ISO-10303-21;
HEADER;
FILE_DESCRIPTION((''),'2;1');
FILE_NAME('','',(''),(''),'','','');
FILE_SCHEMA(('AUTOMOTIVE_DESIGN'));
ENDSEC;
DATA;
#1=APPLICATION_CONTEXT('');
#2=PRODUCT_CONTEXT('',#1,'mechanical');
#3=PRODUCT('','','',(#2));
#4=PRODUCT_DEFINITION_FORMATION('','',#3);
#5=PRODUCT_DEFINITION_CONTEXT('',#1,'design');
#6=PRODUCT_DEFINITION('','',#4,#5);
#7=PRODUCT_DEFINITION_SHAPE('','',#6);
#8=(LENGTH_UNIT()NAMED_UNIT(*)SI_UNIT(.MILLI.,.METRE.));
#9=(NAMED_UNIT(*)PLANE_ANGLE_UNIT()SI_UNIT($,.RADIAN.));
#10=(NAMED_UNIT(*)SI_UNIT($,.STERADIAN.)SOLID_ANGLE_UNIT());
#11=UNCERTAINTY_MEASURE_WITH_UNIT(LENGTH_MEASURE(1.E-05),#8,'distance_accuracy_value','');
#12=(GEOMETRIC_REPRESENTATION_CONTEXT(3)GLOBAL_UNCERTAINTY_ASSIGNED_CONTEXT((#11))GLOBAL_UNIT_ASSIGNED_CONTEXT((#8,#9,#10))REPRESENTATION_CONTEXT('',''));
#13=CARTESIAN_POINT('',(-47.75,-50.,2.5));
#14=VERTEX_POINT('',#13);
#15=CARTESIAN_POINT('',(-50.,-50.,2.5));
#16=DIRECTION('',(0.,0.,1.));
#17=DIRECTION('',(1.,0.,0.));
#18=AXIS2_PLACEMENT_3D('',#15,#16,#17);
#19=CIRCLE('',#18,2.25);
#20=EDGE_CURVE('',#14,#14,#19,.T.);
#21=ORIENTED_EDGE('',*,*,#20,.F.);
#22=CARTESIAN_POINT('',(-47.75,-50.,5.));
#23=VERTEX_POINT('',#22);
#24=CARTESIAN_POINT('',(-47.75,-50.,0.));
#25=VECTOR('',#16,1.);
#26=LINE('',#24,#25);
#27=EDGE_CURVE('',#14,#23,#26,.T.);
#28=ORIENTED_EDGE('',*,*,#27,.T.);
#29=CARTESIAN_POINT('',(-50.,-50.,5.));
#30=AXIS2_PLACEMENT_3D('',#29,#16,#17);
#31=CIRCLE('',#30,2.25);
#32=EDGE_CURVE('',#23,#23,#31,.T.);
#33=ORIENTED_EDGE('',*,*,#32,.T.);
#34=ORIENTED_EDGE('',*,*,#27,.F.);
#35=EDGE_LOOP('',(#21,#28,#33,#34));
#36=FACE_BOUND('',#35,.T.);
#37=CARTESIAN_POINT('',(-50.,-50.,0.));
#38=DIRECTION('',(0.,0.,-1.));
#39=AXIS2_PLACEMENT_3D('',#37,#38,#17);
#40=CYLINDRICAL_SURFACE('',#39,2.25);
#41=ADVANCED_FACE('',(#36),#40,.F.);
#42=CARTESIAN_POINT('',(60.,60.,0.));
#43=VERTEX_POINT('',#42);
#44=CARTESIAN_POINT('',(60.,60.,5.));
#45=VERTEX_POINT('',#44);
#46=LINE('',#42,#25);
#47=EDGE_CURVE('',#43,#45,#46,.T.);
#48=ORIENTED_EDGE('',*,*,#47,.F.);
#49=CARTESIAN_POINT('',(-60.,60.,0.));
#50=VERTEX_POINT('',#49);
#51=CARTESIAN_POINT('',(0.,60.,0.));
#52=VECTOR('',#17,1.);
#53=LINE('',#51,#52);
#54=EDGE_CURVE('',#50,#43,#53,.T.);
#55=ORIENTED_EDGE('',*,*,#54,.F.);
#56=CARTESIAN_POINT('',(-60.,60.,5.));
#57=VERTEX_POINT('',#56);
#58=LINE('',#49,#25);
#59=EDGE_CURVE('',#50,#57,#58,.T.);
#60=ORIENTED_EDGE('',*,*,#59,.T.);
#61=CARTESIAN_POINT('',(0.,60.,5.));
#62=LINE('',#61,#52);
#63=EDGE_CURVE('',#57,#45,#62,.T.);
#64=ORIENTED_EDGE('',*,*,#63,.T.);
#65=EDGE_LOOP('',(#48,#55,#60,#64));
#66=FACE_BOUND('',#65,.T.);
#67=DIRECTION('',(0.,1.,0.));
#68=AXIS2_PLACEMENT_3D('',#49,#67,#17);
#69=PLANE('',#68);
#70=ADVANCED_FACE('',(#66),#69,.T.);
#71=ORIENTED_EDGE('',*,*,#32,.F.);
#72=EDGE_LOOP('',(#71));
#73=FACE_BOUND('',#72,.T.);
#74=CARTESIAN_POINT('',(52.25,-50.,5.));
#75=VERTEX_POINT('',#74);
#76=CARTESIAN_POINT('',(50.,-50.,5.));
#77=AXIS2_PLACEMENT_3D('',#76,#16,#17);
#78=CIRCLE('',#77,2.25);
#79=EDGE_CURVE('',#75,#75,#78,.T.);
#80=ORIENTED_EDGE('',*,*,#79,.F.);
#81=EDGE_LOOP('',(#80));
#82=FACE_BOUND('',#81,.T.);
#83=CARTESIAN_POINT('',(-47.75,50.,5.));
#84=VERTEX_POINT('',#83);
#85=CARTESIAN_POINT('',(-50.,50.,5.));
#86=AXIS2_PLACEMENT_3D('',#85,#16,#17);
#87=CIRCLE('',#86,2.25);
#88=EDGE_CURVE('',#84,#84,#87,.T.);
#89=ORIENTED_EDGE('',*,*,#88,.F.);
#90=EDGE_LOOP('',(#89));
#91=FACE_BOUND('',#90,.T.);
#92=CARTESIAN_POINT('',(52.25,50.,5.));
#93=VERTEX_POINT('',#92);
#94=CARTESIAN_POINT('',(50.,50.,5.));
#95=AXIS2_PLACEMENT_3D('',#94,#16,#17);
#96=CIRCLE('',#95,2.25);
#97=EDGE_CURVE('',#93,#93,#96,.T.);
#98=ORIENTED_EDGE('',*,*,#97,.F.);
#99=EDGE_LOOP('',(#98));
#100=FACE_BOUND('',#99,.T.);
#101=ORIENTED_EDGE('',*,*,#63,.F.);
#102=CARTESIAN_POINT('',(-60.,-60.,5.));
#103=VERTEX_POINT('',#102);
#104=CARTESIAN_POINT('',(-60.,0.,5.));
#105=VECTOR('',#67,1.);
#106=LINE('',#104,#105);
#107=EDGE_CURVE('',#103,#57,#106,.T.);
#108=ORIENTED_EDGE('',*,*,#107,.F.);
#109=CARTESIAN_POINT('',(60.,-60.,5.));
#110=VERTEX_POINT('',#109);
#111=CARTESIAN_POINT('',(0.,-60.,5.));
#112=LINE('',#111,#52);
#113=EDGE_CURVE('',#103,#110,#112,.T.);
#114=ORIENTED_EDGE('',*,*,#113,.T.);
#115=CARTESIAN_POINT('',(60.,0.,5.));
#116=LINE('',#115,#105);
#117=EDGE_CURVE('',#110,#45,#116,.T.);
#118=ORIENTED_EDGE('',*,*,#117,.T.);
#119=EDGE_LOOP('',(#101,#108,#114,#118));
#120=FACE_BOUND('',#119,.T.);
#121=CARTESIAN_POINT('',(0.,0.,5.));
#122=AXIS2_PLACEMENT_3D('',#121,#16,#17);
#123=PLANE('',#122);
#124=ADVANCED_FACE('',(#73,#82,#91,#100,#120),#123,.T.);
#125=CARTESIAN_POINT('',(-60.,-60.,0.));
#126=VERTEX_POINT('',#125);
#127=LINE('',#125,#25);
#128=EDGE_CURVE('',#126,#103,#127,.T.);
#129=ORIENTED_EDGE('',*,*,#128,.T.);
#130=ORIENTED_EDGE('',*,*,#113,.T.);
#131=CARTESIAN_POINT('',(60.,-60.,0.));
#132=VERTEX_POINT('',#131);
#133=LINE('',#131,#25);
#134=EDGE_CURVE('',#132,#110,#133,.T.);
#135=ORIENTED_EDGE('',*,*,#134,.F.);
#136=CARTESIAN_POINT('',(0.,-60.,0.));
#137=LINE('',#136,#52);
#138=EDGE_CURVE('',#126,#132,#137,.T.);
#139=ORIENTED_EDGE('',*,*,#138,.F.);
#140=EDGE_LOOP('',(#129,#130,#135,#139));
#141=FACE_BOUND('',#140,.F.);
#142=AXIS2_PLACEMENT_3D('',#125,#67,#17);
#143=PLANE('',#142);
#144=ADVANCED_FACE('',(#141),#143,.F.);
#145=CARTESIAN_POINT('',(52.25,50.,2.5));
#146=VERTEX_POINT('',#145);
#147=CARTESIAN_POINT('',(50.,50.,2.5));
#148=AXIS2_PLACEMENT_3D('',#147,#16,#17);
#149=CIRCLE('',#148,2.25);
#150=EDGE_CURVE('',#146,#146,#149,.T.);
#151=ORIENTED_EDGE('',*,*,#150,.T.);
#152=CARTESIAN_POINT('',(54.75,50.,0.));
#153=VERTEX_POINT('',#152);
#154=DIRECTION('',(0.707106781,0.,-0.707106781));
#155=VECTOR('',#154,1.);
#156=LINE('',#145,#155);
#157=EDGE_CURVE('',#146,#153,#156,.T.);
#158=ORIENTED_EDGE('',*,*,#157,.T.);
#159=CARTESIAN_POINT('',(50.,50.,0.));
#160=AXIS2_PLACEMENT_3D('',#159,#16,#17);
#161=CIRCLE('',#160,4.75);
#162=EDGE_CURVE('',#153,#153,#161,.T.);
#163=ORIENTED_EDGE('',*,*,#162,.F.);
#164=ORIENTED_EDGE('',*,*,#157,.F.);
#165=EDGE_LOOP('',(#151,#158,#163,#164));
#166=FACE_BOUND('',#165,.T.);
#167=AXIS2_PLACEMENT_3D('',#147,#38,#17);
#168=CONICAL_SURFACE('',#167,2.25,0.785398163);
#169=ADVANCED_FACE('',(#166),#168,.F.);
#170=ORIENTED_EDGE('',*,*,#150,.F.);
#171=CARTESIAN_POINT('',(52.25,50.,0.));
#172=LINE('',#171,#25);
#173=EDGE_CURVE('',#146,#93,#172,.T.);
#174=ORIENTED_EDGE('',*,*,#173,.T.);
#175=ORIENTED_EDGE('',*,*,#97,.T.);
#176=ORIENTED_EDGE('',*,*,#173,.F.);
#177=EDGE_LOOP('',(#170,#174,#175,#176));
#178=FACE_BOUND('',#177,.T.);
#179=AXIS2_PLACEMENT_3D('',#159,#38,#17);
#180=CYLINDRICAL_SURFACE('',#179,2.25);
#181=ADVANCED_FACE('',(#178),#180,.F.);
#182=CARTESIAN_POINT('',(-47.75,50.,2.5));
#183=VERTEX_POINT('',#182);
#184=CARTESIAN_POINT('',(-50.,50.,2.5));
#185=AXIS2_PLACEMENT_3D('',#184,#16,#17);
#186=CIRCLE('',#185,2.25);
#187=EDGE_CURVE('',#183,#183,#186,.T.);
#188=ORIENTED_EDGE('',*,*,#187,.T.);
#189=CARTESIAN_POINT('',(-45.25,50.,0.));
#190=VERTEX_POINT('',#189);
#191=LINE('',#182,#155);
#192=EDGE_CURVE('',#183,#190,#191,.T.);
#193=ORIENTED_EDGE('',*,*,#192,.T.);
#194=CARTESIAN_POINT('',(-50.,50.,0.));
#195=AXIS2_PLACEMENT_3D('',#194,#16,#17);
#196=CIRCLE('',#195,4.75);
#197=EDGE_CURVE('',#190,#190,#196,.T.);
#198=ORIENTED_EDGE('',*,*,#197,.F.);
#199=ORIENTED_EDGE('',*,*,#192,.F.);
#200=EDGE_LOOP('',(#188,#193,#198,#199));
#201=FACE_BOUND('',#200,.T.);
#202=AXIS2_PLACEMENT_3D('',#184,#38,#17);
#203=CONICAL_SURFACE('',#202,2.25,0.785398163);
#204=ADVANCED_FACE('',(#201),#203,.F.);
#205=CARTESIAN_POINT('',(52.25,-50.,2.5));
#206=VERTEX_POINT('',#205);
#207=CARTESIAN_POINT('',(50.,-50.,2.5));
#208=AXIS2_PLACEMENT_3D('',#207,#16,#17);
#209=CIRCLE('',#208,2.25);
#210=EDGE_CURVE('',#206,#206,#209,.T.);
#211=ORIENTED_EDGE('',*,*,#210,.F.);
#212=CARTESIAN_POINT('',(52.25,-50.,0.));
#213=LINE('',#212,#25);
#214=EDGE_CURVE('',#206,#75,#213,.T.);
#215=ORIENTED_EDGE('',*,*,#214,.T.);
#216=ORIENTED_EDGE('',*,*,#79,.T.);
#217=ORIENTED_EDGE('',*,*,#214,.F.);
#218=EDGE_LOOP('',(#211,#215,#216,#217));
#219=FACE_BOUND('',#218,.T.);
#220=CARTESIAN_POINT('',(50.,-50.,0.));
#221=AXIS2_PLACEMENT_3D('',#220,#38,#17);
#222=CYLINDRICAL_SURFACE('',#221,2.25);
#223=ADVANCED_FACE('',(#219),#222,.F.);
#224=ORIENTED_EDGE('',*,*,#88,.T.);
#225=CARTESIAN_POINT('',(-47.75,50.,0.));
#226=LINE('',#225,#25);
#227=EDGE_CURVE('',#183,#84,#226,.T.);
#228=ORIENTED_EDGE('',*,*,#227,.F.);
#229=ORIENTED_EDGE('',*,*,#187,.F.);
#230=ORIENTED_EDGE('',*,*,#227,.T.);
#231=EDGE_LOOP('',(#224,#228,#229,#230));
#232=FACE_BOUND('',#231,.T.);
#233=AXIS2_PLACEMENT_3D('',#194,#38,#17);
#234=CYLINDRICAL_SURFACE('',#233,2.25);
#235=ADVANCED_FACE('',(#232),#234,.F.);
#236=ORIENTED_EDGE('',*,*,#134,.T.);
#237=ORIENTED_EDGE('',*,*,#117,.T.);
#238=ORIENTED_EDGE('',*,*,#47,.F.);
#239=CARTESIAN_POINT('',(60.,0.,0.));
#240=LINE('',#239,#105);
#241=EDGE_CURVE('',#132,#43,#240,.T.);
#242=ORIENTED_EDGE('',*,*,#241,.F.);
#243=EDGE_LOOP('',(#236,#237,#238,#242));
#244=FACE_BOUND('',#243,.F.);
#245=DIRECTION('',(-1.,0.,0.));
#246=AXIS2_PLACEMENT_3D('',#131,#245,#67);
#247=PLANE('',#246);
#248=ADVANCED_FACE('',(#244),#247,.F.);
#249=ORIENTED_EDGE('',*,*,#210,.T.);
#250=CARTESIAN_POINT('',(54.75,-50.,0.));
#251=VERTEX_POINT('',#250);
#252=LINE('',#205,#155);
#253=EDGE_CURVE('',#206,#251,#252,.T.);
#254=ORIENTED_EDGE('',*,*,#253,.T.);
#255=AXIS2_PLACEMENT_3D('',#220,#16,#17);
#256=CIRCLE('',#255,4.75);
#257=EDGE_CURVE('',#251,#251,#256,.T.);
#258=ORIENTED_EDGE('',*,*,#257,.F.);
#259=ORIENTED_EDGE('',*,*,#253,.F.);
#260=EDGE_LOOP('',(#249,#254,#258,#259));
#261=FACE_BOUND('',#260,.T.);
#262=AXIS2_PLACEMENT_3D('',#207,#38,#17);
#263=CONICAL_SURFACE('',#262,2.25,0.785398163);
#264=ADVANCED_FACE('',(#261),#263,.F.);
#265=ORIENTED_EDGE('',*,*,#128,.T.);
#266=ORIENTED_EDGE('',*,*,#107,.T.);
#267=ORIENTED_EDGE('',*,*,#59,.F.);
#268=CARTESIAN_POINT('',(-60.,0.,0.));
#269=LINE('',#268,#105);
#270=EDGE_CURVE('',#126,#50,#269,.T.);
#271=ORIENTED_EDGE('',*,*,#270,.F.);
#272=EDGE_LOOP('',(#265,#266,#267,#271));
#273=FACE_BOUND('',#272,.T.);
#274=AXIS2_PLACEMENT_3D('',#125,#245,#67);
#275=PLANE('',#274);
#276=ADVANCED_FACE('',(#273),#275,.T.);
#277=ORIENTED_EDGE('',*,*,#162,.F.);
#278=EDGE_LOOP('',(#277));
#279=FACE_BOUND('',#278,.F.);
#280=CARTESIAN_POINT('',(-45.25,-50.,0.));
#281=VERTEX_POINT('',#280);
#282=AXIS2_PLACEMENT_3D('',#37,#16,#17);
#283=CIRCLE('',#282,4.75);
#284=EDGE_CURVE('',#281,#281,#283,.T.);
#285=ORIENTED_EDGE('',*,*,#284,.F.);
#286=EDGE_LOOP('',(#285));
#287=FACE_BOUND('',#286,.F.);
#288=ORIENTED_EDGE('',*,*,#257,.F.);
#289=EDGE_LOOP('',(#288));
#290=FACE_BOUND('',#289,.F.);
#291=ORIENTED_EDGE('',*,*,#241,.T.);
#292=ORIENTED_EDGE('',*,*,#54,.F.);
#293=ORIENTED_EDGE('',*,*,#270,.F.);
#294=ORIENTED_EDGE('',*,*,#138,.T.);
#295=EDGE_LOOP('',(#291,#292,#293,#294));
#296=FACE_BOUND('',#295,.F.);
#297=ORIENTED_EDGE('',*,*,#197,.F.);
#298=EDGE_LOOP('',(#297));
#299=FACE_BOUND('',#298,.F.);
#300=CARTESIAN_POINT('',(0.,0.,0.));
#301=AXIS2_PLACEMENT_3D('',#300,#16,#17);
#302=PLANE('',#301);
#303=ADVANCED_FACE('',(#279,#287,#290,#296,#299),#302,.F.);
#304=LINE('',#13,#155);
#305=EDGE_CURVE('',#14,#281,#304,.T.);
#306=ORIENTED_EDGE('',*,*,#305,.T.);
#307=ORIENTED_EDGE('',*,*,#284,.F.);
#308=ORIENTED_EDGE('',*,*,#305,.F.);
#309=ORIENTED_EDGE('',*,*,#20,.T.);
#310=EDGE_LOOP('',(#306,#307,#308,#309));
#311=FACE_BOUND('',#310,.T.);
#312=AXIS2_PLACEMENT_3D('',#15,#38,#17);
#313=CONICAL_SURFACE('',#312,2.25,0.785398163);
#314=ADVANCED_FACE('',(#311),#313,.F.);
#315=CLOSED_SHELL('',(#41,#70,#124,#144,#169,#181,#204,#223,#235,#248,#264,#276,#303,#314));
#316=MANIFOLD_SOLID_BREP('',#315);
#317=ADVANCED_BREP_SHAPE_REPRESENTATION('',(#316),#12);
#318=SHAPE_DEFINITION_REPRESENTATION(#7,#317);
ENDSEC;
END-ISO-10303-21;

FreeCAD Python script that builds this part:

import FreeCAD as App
import Part
import Sketcher

V = App.Vector
Q = App.Units.Quantity


def edges_at(feature, points):
    """Names of the edges that pass closest to the given points."""
    edges = feature.Shape.Edges
    near = lambda p: min(range(len(edges)), key=lambda i: edges[i].distToShape(Part.Vertex(*p))[0])
    return sorted({f"Edge{near(p) + 1}" for p in points})


def add_polygon(sketch, points):
    """Adds a closed chain of lines whose ends are joined by coincident constraints."""
    first, n = sketch.GeometryCount, len(points)
    for a, b in zip(points, points[1:] + points[:1]):
        sketch.addGeometry(Part.LineSegment(App.Vector(*a, 0), App.Vector(*b, 0)), False)
    for i in range(n):
        sketch.addConstraint(Sketcher.Constraint("Coincident", first + i, 2, first + (i + 1) % n, 1))

doc = App.newDocument("Part")
params = doc.addObject("Spreadsheet::Sheet", "Params")
for row, (alias, value) in enumerate([
    ("sketch1_diameter", "4.5 mm"),
    ("sketch1_width", "120 mm"),
    ("pad1_length", "5 mm"),
    ("chamfer_size", "2.5 mm"),
], start=1):
    params.set(f"A{row}", alias)
    params.set(f"B{row}", "=" + value)
    params.setAlias(f"B{row}", alias)

body = doc.addObject("PartDesign::Body", "Body")

sketch1 = body.newObject("Sketcher::SketchObject", "Sketch")
sketch1.AttachmentSupport = (doc.getObject("XY_Plane"), [""])
sketch1.MapMode = "FlatFace"
add_polygon(sketch1, [(-60, 60), (-60, -60), (60, -60), (60, 60)])
sketch1.addGeometry(Part.Circle(V(-50, -50, 0), V(0, 0, 1), 2.2), False)
sketch1.addGeometry(Part.Circle(V(50, -50, 0), V(0, 0, 1), 2.2), False)
sketch1.addGeometry(Part.Circle(V(-50, 50, 0), V(0, 0, 1), 2.2), False)
sketch1.addGeometry(Part.Circle(V(50, 50, 0), V(0, 0, 1), 2.2), False)
sketch1.addConstraint(Sketcher.Constraint("Vertical", 0))
sketch1.addConstraint(Sketcher.Constraint("Horizontal", 1))
sketch1.addConstraint(Sketcher.Constraint("Vertical", 2))
sketch1.addConstraint(Sketcher.Constraint("Horizontal", 3))
sketch1.addConstraint(Sketcher.Constraint("Equal", 4, 5))
sketch1.addConstraint(Sketcher.Constraint("Equal", 5, 6))
sketch1.addConstraint(Sketcher.Constraint("Equal", 6, 7))
sketch1.addConstraint(Sketcher.Constraint("Symmetric", 5, 3, 6, 3, -1, 1))
sketch1.addConstraint(Sketcher.Constraint("Symmetric", 4, 3, 7, 3, -1, 1))
sketch1.addConstraint(Sketcher.Constraint("Symmetric", 0, 2, 2, 2, -1, 1))
sketch1.addConstraint(Sketcher.Constraint("Symmetric", 4, 3, 5, 3, -2))
sketch1.addConstraint(Sketcher.Constraint("Equal", 3, 0))
sketch1.addConstraint(Sketcher.Constraint("Diameter", 4, Q("4.5 mm")))
sketch1.addConstraint(Sketcher.Constraint("DistanceX", 1, 1, 1, 2, Q("120 mm")))
sketch1.addConstraint(Sketcher.Constraint("DistanceX", 4, 3, -1, 1, Q("50 mm")))
sketch1.addConstraint(Sketcher.Constraint("DistanceY", 4, 3, -1, 1, Q("50 mm")))
sketch1.setExpression("Constraints[16]", "Params.sketch1_diameter")
sketch1.setExpression("Constraints[17]", "Params.sketch1_width")
pad1 = body.newObject("PartDesign::Pad", "Pad")
pad1.Profile = sketch1
pad1.setExpression("Length", "Params.pad1_length")
doc.recompute()

chamfer = body.newObject("PartDesign::Chamfer", "Chamfer")
chamfer.Base = (pad1, edges_at(pad1, [
    (47.75, -50, 0),
    (-52.25, -50, 0),
    (-52.25, 50, 0),
    (47.75, 50, 0),
]))
chamfer.setExpression("Size", "Params.chamfer_size")

doc.recompute()
